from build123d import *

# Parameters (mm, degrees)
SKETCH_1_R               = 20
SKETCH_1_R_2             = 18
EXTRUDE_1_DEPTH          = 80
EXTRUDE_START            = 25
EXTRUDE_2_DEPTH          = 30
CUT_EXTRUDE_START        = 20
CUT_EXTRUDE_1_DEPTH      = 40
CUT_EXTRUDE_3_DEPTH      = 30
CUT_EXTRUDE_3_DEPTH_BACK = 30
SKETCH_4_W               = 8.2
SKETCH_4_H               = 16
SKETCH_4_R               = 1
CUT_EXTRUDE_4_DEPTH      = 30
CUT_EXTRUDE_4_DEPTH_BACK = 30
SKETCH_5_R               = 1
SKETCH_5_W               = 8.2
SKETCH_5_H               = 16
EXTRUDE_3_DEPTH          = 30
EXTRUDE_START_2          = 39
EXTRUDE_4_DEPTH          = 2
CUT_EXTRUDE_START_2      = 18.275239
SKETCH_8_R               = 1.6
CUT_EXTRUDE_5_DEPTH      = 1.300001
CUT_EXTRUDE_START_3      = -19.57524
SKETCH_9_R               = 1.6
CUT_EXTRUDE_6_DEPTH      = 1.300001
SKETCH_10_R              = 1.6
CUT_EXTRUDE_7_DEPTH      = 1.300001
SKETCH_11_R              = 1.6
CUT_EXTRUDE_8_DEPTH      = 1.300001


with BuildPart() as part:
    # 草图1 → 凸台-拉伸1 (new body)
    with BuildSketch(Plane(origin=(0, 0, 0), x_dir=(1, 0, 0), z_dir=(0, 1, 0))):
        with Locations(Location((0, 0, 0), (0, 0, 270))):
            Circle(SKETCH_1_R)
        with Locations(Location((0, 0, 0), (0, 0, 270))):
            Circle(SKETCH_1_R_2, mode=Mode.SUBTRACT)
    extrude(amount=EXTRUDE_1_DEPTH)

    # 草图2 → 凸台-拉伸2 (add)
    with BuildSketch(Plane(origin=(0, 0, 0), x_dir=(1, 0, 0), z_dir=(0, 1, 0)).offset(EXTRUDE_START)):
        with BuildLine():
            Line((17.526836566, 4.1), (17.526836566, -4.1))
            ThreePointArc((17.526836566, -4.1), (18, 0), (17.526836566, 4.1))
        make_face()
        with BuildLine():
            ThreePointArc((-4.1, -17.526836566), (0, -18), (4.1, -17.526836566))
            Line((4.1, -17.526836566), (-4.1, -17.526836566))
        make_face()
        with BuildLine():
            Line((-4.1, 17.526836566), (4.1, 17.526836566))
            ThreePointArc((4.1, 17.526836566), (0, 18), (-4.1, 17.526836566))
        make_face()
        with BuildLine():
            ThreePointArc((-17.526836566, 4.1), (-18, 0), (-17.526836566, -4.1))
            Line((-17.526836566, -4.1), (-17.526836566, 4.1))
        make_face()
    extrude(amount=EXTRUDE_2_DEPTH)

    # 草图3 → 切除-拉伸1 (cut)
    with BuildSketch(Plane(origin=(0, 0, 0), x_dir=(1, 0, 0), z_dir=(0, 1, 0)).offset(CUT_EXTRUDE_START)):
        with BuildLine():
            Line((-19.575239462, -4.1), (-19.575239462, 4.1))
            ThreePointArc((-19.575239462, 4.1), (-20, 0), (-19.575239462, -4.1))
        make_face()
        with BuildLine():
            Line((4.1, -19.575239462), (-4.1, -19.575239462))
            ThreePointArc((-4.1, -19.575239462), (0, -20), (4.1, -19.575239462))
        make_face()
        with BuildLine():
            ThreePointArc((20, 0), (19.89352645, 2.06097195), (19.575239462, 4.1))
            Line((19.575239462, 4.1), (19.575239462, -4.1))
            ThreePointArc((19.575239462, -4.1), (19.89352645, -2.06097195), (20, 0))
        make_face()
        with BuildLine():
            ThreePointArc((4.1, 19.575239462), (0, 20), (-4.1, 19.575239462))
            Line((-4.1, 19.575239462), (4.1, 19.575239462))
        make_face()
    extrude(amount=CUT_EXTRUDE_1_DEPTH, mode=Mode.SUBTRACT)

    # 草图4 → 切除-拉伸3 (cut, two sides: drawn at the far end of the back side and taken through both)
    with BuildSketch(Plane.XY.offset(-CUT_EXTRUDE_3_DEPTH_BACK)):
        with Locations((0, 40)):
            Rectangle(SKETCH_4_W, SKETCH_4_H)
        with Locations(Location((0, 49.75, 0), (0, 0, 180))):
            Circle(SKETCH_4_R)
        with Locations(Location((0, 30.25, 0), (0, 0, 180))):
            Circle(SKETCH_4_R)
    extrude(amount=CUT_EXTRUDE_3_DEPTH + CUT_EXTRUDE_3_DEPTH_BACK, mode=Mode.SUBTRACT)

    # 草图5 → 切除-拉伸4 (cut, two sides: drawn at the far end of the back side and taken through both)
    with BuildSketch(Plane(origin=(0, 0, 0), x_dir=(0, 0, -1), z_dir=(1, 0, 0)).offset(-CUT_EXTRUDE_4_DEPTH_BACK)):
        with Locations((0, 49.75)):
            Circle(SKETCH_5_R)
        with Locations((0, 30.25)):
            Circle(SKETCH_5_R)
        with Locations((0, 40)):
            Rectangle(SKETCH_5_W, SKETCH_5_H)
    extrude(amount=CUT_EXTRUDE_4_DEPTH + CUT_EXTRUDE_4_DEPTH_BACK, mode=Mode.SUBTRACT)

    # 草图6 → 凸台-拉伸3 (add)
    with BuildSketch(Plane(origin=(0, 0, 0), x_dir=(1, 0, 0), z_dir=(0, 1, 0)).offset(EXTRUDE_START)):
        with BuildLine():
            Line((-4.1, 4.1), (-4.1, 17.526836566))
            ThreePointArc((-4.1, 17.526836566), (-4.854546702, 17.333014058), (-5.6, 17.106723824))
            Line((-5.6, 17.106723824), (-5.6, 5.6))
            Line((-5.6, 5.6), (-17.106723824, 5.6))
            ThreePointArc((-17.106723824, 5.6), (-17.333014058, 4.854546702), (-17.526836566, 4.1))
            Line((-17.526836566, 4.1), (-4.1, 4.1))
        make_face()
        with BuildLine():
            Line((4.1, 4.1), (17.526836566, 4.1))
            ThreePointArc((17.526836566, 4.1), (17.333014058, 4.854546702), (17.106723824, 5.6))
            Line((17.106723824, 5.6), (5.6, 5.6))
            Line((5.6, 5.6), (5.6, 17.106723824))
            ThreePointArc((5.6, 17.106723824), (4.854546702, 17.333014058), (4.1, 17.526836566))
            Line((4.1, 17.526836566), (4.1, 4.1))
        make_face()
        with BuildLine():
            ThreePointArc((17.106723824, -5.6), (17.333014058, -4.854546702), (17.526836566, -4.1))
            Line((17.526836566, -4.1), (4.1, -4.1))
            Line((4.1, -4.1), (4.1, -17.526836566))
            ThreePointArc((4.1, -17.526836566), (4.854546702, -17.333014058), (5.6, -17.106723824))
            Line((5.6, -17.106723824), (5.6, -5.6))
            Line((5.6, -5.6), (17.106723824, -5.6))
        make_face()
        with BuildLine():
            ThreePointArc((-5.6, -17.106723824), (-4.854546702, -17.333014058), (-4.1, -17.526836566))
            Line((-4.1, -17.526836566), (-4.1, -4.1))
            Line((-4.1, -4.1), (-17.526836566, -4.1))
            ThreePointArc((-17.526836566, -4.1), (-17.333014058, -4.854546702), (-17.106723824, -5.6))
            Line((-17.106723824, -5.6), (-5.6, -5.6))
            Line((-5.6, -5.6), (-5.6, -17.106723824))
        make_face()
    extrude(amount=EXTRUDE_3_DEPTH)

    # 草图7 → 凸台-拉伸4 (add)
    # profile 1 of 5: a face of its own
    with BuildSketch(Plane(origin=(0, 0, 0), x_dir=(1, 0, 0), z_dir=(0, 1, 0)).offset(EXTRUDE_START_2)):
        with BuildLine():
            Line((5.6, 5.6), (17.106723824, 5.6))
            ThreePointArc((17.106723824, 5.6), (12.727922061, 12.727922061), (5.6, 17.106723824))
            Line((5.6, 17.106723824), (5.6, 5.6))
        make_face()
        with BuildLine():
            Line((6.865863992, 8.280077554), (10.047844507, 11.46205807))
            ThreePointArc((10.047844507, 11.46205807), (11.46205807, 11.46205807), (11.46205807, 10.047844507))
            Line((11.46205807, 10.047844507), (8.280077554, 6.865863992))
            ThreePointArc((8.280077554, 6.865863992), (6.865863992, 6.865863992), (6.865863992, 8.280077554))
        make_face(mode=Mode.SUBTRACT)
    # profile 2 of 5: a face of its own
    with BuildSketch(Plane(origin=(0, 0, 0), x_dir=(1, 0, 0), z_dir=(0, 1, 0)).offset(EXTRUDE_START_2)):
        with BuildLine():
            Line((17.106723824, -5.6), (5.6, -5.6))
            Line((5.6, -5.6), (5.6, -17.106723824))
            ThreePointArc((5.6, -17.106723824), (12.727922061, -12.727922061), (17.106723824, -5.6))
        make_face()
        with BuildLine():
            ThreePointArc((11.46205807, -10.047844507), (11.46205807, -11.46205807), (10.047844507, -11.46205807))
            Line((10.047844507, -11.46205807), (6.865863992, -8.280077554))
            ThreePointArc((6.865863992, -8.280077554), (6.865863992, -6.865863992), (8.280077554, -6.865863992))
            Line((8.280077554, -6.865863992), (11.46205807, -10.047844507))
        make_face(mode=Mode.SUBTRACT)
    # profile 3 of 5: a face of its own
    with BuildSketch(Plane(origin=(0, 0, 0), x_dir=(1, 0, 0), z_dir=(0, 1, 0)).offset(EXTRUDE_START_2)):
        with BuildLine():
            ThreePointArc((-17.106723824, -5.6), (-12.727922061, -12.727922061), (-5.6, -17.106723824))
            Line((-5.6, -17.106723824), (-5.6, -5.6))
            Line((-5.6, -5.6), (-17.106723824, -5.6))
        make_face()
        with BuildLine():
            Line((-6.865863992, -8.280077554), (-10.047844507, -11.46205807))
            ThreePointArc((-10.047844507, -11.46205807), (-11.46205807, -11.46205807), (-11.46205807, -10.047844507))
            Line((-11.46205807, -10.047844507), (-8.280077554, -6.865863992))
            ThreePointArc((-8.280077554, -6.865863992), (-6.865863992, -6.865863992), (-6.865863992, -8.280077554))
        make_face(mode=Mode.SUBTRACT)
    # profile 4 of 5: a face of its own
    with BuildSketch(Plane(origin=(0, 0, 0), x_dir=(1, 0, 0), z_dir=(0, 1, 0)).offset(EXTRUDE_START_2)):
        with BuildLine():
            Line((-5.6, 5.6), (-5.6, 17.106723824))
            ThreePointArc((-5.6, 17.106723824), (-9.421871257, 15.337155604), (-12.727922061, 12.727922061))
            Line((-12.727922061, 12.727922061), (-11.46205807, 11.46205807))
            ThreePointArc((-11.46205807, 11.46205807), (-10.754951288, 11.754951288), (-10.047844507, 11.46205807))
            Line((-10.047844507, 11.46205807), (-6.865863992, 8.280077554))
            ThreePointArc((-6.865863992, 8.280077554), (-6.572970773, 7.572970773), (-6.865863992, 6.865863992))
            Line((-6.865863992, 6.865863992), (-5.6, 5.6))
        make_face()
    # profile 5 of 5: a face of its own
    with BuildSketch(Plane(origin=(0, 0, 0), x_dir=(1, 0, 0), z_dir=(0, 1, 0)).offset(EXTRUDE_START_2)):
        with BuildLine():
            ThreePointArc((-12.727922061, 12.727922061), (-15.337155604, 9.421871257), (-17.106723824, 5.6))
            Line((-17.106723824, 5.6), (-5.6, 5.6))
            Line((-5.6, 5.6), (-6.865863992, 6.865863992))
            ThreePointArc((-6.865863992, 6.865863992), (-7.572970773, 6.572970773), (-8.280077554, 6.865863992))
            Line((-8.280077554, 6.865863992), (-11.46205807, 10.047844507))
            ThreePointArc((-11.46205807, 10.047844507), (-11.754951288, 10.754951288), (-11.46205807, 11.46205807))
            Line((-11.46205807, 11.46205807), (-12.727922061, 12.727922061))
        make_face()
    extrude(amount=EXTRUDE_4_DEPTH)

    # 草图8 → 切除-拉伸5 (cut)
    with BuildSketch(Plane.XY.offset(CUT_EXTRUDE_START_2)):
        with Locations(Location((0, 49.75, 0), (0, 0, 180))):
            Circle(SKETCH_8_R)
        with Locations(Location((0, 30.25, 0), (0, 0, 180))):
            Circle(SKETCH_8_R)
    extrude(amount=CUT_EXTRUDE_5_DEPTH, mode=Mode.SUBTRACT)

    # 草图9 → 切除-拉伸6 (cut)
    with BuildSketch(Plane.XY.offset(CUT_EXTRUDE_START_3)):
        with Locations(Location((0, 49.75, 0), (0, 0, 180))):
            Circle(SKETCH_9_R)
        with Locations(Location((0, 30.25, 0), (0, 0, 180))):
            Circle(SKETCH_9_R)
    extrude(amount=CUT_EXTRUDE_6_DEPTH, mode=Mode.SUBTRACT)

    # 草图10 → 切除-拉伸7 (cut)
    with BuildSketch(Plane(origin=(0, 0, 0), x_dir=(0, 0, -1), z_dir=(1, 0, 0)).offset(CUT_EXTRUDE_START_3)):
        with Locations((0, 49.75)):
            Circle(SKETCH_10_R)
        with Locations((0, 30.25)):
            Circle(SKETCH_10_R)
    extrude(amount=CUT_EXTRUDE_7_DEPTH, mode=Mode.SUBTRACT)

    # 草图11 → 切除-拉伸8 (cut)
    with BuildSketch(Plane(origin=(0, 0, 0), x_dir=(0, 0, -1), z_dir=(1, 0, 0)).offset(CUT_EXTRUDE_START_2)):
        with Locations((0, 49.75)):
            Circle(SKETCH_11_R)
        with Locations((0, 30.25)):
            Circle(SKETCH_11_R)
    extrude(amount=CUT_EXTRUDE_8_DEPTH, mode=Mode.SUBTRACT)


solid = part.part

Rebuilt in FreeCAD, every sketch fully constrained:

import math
import FreeCAD as App
import Part
import Sketcher

V = App.Vector

doc = App.newDocument("Part")
body = doc.addObject("PartDesign::Body", "Body")

# Sketch on XZ plane
sketch1 = body.newObject("Sketcher::SketchObject", "Sketch")
sketch1.AttachmentSupport = (doc.getObject("XZ_Plane"), [""])
sketch1.MapMode = "FlatFace"
sketch1.addGeometry([
    Part.Circle(V(0, 0, 0), V(0, 0, 1), 20),
    Part.Circle(V(0, 0, 0), V(0, 0, 1), 18),
], False)
sketch1.addConstraint([
    Sketcher.Constraint("Coincident", 0, 3, -1, 1),
    Sketcher.Constraint("Coincident", 1, 3, -1, 1),
    Sketcher.Constraint("Diameter", 0, 40.0),
    Sketcher.Constraint("Diameter", 1, 36.0),
])
pad1 = body.newObject("PartDesign::Pad", "Pad")
pad1.Profile = sketch1
pad1.Length = 80
pad1.Reversed = True

# Sketch on XZ plane
sketch2 = body.newObject("Sketcher::SketchObject", "Sketch001")
sketch2.AttachmentSupport = (doc.getObject("XZ_Plane"), [""])
sketch2.MapMode = "FlatFace"
sketch2.AttachmentOffset = App.Placement(V(0, 0, -25), App.Rotation())
sketch2.addGeometry([
    Part.LineSegment(V(18, -4, 0), V(18, 4, 0)),  # 0
    Part.ArcOfCircle(Part.Circle(V(0, 0, 0), V(0, 0, 1), 18), math.radians(-13), math.radians(13)),  # 1
    Part.ArcOfCircle(Part.Circle(V(0, 0, 0), V(0, 0, 1), 18), math.radians(77), math.radians(103)),  # 2
    Part.LineSegment(V(4, 18, 0), V(-4, 18, 0)),  # 3
    Part.LineSegment(V(-4, -18, 0), V(4, -18, 0)),  # 4
    Part.ArcOfCircle(Part.Circle(V(0, 0, 0), V(0, 0, 1), 18), math.radians(-103), math.radians(-77)),  # 5
    Part.ArcOfCircle(Part.Circle(V(0, 0, 0), V(0, 0, 1), 18), math.radians(167), math.radians(193)),  # 6
    Part.LineSegment(V(-18, 4, 0), V(-18, -4, 0)),  # 7
], False)
sketch2.addConstraint([
    Sketcher.Constraint("Coincident", 0, 1, 1, 1),
    Sketcher.Constraint("Coincident", 1, 2, 0, 2),
    Sketcher.Constraint("Coincident", 2, 1, 3, 1),
    Sketcher.Constraint("Coincident", 3, 2, 2, 2),
    Sketcher.Constraint("Coincident", 4, 1, 5, 1),
    Sketcher.Constraint("Coincident", 5, 2, 4, 2),
    Sketcher.Constraint("Coincident", 6, 1, 7, 1),
    Sketcher.Constraint("Coincident", 7, 2, 6, 2),
    Sketcher.Constraint("Vertical", 0),
    Sketcher.Constraint("Horizontal", 3),
    Sketcher.Constraint("Horizontal", 4),
    Sketcher.Constraint("Vertical", 7),
    Sketcher.Constraint("Coincident", 1, 3, -1, 1),
    Sketcher.Constraint("Coincident", 2, 3, -1, 1),
    Sketcher.Constraint("Coincident", 5, 3, -1, 1),
    Sketcher.Constraint("Coincident", 6, 3, -1, 1),
    Sketcher.Constraint("Equal", 1, 2),
    Sketcher.Constraint("Equal", 2, 5),
    Sketcher.Constraint("Equal", 5, 6),
    Sketcher.Constraint("Horizontal", 1, 2, 6, 1),
    Sketcher.Constraint("Vertical", 3, 2, 4, 1),
    Sketcher.Constraint("Equal", 4, 0),
    Sketcher.Constraint("Radius", 1, 18.0),
    Sketcher.Constraint("DistanceX", 3, 2, 3, 1, 8.2),
])
pad2 = body.newObject("PartDesign::Pad", "Pad001")
pad2.Profile = sketch2
pad2.Length = 30
pad2.Reversed = True

# Sketch on XZ plane
sketch3 = body.newObject("Sketcher::SketchObject", "Sketch002")
sketch3.AttachmentSupport = (doc.getObject("XZ_Plane"), [""])
sketch3.MapMode = "FlatFace"
sketch3.AttachmentOffset = App.Placement(V(0, 0, -20), App.Rotation())
sketch3.addGeometry([
    Part.LineSegment(V(-19.6, 4.1, 0), V(-19.6, -4.1, 0)),  # 0
    Part.ArcOfCircle(Part.Circle(V(0, 0, 0), V(0, 0, 1), 20), math.radians(168), math.radians(192)),  # 1
    Part.LineSegment(V(4.1, 19.6, 0), V(-4.1, 19.6, 0)),  # 2
    Part.ArcOfCircle(Part.Circle(V(0, 0, 0), V(0, 0, 1), 20), math.radians(78), math.radians(102)),  # 3
    Part.ArcOfCircle(Part.Circle(V(0, 0, 0), V(0, 0, 1), 20), math.radians(-11.83), math.radians(0)),  # 4
    Part.LineSegment(V(19.6, -4.1, 0), V(19.6, 4.1, 0)),  # 5
    Part.ArcOfCircle(Part.Circle(V(0, 0, 0), V(0, 0, 1), 20), math.radians(0), math.radians(11.83)),  # 6
    Part.ArcOfCircle(Part.Circle(V(0, 0, 0), V(0, 0, 1), 20), math.radians(-102), math.radians(-78)),  # 7
    Part.LineSegment(V(-4.1, -19.6, 0), V(4.1, -19.6, 0)),  # 8
], False)
sketch3.addConstraint([
    Sketcher.Constraint("Coincident", 0, 1, 1, 1),
    Sketcher.Constraint("Coincident", 1, 2, 0, 2),
    Sketcher.Constraint("Coincident", 2, 1, 3, 1),
    Sketcher.Constraint("Coincident", 3, 2, 2, 2),
    Sketcher.Constraint("Coincident", 4, 1, 5, 1),
    Sketcher.Constraint("Coincident", 5, 2, 6, 2),
    Sketcher.Constraint("Tangent", 6, 1, 4, 2),
    Sketcher.Constraint("Coincident", 7, 1, 8, 1),
    Sketcher.Constraint("Coincident", 8, 2, 7, 2),
    Sketcher.Constraint("Vertical", 0),
    Sketcher.Constraint("Horizontal", 2),
    Sketcher.Constraint("Vertical", 5),
    Sketcher.Constraint("Horizontal", 8),
    Sketcher.Constraint("Coincident", 1, 3, -1, 1),
    Sketcher.Constraint("Coincident", 3, 3, -1, 1),
    Sketcher.Constraint("Coincident", 4, 3, -1, 1),
    Sketcher.Constraint("Coincident", 7, 3, -1, 1),
    Sketcher.Constraint("Equal", 1, 3),
    Sketcher.Constraint("Equal", 3, 4),
    Sketcher.Constraint("Equal", 4, 6),
    Sketcher.Constraint("Equal", 6, 7),
    Sketcher.Constraint("PointOnObject", 6, 1, -1),
    Sketcher.Constraint("Horizontal", 1, 2, 4, 1),
    Sketcher.Constraint("Vertical", 3, 2, 7, 1),
    Sketcher.Constraint("Equal", 8, 0),
    Sketcher.Constraint("Radius", 1, 20.0),
    Sketcher.Constraint("DistanceX", 2, 2, 2, 1, 8.2),
])
pocket1 = body.newObject("PartDesign::Pocket", "Pocket")
pocket1.Profile = sketch3
pocket1.Length = 40

# Sketch on XY plane
sketch4 = body.newObject("Sketcher::SketchObject", "Sketch003")
sketch4.AttachmentSupport = (doc.getObject("XY_Plane"), [""])
sketch4.MapMode = "FlatFace"
sketch4.addGeometry([
    Part.LineSegment(V(-4.1, 48, 0), V(-4.1, 32, 0)),  # 0
    Part.LineSegment(V(-4.1, 32, 0), V(4.1, 32, 0)),  # 1
    Part.LineSegment(V(4.1, 32, 0), V(4.1, 48, 0)),  # 2
    Part.LineSegment(V(4.1, 48, 0), V(-4.1, 48, 0)),  # 3
    Part.Circle(V(0, 49.8, 0), V(0, 0, 1), 1),  # 4
    Part.Circle(V(0, 30.2, 0), V(0, 0, 1), 1),  # 5
], False)
sketch4.addConstraint([
    Sketcher.Constraint("Coincident", 0, 2, 1, 1),
    Sketcher.Constraint("Coincident", 1, 2, 2, 1),
    Sketcher.Constraint("Coincident", 2, 2, 3, 1),
    Sketcher.Constraint("Coincident", 3, 2, 0, 1),
    Sketcher.Constraint("Vertical", 0),
    Sketcher.Constraint("Horizontal", 1),
    Sketcher.Constraint("Vertical", 2),
    Sketcher.Constraint("Horizontal", 3),
    Sketcher.Constraint("Equal", 4, 5),
    Sketcher.Constraint("PointOnObject", 4, 3, -2),
    Sketcher.Constraint("PointOnObject", 5, 3, -2),
    Sketcher.Constraint("Diameter", 4, 2.0),
    Sketcher.Constraint("DistanceY", 0, 2, 0, 1, 16.0),
    Sketcher.Constraint("DistanceX", 1, 1, 1, 2, 8.2),
    Sketcher.Constraint("DistanceY", -1, 1, 0, 2, 32.0),
    Sketcher.Constraint("DistanceX", 0, 2, -1, 1, 4.1),
    Sketcher.Constraint("DistanceY", 5, 3, 4, 3, 19.5),
    Sketcher.Constraint("DistanceY", -1, 1, 4, 3, 49.75),
])
pocket2 = body.newObject("PartDesign::Pocket", "Pocket001")
pocket2.Profile = sketch4
pocket2.Type = "ThroughAll"
pocket2.Midplane = True

# Sketch on YZ plane
sketch5 = body.newObject("Sketcher::SketchObject", "Sketch004")
sketch5.AttachmentSupport = (doc.getObject("YZ_Plane"), [""])
sketch5.MapMode = "FlatFace"
sketch5.addGeometry([
    Part.Circle(V(49.8, 0, 0), V(0, 0, 1), 1),  # 0
    Part.Circle(V(30.2, 0, 0), V(0, 0, 1), 1),  # 1
    Part.LineSegment(V(48, 4.1, 0), V(32, 4.1, 0)),  # 2
    Part.LineSegment(V(32, 4.1, 0), V(32, -4.1, 0)),  # 3
    Part.LineSegment(V(32, -4.1, 0), V(48, -4.1, 0)),  # 4
    Part.LineSegment(V(48, -4.1, 0), V(48, 4.1, 0)),  # 5
], False)
sketch5.addConstraint([
    Sketcher.Constraint("Coincident", 2, 2, 3, 1),
    Sketcher.Constraint("Coincident", 3, 2, 4, 1),
    Sketcher.Constraint("Coincident", 4, 2, 5, 1),
    Sketcher.Constraint("Coincident", 5, 2, 2, 1),
    Sketcher.Constraint("Horizontal", 2),
    Sketcher.Constraint("Vertical", 3),
    Sketcher.Constraint("Horizontal", 4),
    Sketcher.Constraint("Vertical", 5),
    Sketcher.Constraint("Equal", 0, 1),
    Sketcher.Constraint("PointOnObject", 0, 3, -1),
    Sketcher.Constraint("PointOnObject", 1, 3, -1),
    Sketcher.Constraint("Diameter", 0, 2.0),
    Sketcher.Constraint("DistanceX", 2, 2, 2, 1, 16.0),
    Sketcher.Constraint("DistanceY", 3, 2, 3, 1, 8.2),
    Sketcher.Constraint("DistanceX", -1, 1, 2, 2, 32.0),
    Sketcher.Constraint("DistanceY", -1, 1, 2, 2, 4.1),
    Sketcher.Constraint("DistanceX", 1, 3, 0, 3, 19.5),
    Sketcher.Constraint("DistanceX", -1, 1, 0, 3, 49.75),
])
pocket3 = body.newObject("PartDesign::Pocket", "Pocket002")
pocket3.Profile = sketch5
pocket3.Type = "ThroughAll"
pocket3.Midplane = True

# Sketch on XZ plane
sketch6 = body.newObject("Sketcher::SketchObject", "Sketch005")
sketch6.AttachmentSupport = (doc.getObject("XZ_Plane"), [""])
sketch6.MapMode = "FlatFace"
sketch6.AttachmentOffset = App.Placement(V(0, 0, -25), App.Rotation())
sketch6.addGeometry([
    Part.LineSegment(V(-4.1, -4.1, 0), V(-4.1, -17.5, 0)),  # 0
    Part.ArcOfCircle(Part.Circle(V(0, 0, 0), V(0, 0, 1), 18), math.radians(-108.13), math.radians(-103.17)),  # 1
    Part.LineSegment(V(-5.6, -17.1, 0), V(-5.6, -5.6, 0)),  # 2
    Part.LineSegment(V(-5.6, -5.6, 0), V(-17.1, -5.6, 0)),  # 3
    Part.ArcOfCircle(Part.Circle(V(0, 0, 0), V(0, 0, 1), 18), math.radians(-166.83), math.radians(-161.87)),  # 4
    Part.LineSegment(V(-17.5, -4.1, 0), V(-4.1, -4.1, 0)),  # 5
    Part.LineSegment(V(4.1, -4.1, 0), V(17.5, -4.1, 0)),  # 6
    Part.ArcOfCircle(Part.Circle(V(0, 0, 0), V(0, 0, 1), 18), math.radians(-18.13), math.radians(-13.17)),  # 7
    Part.LineSegment(V(17.1, -5.6, 0), V(5.6, -5.6, 0)),  # 8
    Part.LineSegment(V(5.6, -5.6, 0), V(5.6, -17.1, 0)),  # 9
    Part.ArcOfCircle(Part.Circle(V(0, 0, 0), V(0, 0, 1), 18), math.radians(-76.83), math.radians(-71.87)),  # 10
    Part.LineSegment(V(4.1, -17.5, 0), V(4.1, -4.1, 0)),  # 11
    Part.ArcOfCircle(Part.Circle(V(0, 0, 0), V(0, 0, 1), 18), math.radians(13.17), math.radians(18.13)),  # 12
    Part.LineSegment(V(17.5, 4.1, 0), V(4.1, 4.1, 0)),  # 13
    Part.LineSegment(V(4.1, 4.1, 0), V(4.1, 17.5, 0)),  # 14
    Part.ArcOfCircle(Part.Circle(V(0, 0, 0), V(0, 0, 1), 18), math.radians(71.87), math.radians(76.83)),  # 15
    Part.LineSegment(V(5.6, 17.1, 0), V(5.6, 5.6, 0)),  # 16
    Part.LineSegment(V(5.6, 5.6, 0), V(17.1, 5.6, 0)),  # 17
    Part.ArcOfCircle(Part.Circle(V(0, 0, 0), V(0, 0, 1), 18), math.radians(103.17), math.radians(108.13)),  # 18
    Part.LineSegment(V(-4.1, 17.5, 0), V(-4.1, 4.1, 0)),  # 19
    Part.LineSegment(V(-4.1, 4.1, 0), V(-17.5, 4.1, 0)),  # 20
    Part.ArcOfCircle(Part.Circle(V(0, 0, 0), V(0, 0, 1), 18), math.radians(161.87), math.radians(166.83)),  # 21
    Part.LineSegment(V(-17.1, 5.6, 0), V(-5.6, 5.6, 0)),  # 22
    Part.LineSegment(V(-5.6, 5.6, 0), V(-5.6, 17.1, 0)),  # 23
], False)
sketch6.addConstraint([
    Sketcher.Constraint("Coincident", 0, 2, 1, 2),
    Sketcher.Constraint("Coincident", 1, 1, 2, 1),
    Sketcher.Constraint("Coincident", 2, 2, 3, 1),
    Sketcher.Constraint("Coincident", 3, 2, 4, 2),
    Sketcher.Constraint("Coincident", 4, 1, 5, 1),
    Sketcher.Constraint("Coincident", 5, 2, 0, 1),
    Sketcher.Constraint("Coincident", 6, 2, 7, 2),
    Sketcher.Constraint("Coincident", 7, 1, 8, 1),
    Sketcher.Constraint("Coincident", 8, 2, 9, 1),
    Sketcher.Constraint("Coincident", 9, 2, 10, 2),
    Sketcher.Constraint("Coincident", 10, 1, 11, 1),
    Sketcher.Constraint("Coincident", 11, 2, 6, 1),
    Sketcher.Constraint("Coincident", 12, 1, 13, 1),
    Sketcher.Constraint("Coincident", 13, 2, 14, 1),
    Sketcher.Constraint("Coincident", 14, 2, 15, 2),
    Sketcher.Constraint("Coincident", 15, 1, 16, 1),
    Sketcher.Constraint("Coincident", 16, 2, 17, 1),
    Sketcher.Constraint("Coincident", 17, 2, 12, 2),
    Sketcher.Constraint("Coincident", 18, 1, 19, 1),
    Sketcher.Constraint("Coincident", 19, 2, 20, 1),
    Sketcher.Constraint("Coincident", 20, 2, 21, 2),
    Sketcher.Constraint("Coincident", 21, 1, 22, 1),
    Sketcher.Constraint("Coincident", 22, 2, 23, 1),
    Sketcher.Constraint("Coincident", 23, 2, 18, 2),
    Sketcher.Constraint("Vertical", 0),
    Sketcher.Constraint("Vertical", 2),
    Sketcher.Constraint("Horizontal", 3),
    Sketcher.Constraint("Horizontal", 5),
    Sketcher.Constraint("Horizontal", 6),
    Sketcher.Constraint("Horizontal", 8),
    Sketcher.Constraint("Vertical", 9),
    Sketcher.Constraint("Vertical", 11),
    Sketcher.Constraint("Horizontal", 13),
    Sketcher.Constraint("Vertical", 14),
    Sketcher.Constraint("Vertical", 16),
    Sketcher.Constraint("Horizontal", 17),
    Sketcher.Constraint("Vertical", 19),
    Sketcher.Constraint("Horizontal", 20),
    Sketcher.Constraint("Horizontal", 22),
    Sketcher.Constraint("Vertical", 23),
    Sketcher.Constraint("Coincident", 1, 3, -1, 1),
    Sketcher.Constraint("Coincident", 4, 3, -1, 1),
    Sketcher.Constraint("Coincident", 7, 3, -1, 1),
    Sketcher.Constraint("Coincident", 10, 3, -1, 1),
    Sketcher.Constraint("Coincident", 12, 3, -1, 1),
    Sketcher.Constraint("Coincident", 15, 3, -1, 1),
    Sketcher.Constraint("Coincident", 18, 3, -1, 1),
    Sketcher.Constraint("Coincident", 21, 3, -1, 1),
    Sketcher.Constraint("Equal", 1, 4),
    Sketcher.Constraint("Equal", 4, 7),
    Sketcher.Constraint("Equal", 7, 10),
    Sketcher.Constraint("Equal", 10, 12),
    Sketcher.Constraint("Equal", 12, 15),
    Sketcher.Constraint("Equal", 15, 18),
    Sketcher.Constraint("Equal", 18, 21),
    Sketcher.Constraint("Symmetric", 5, 2, 13, 2, -1, 1),
    Sketcher.Constraint("Symmetric", 2, 2, 16, 2, -1, 1),
    Sketcher.Constraint("Symmetric", 11, 2, 19, 2, -1, 1),
    Sketcher.Constraint("Symmetric", 8, 2, 22, 2, -1, 1),
    Sketcher.Constraint("Symmetric", 2, 2, 8, 2, -2),
    Sketcher.Constraint("Symmetric", 5, 2, 11, 2, -2),
    Sketcher.Constraint("Equal", 20, 0),
    Sketcher.Constraint("Equal", 22, 2),
    Sketcher.Constraint("Radius", 1, 18.0),
    Sketcher.Constraint("DistanceX", 0, 2, -1, 1, 4.1),
    Sketcher.Constraint("DistanceX", 1, 1, -1, 1, 5.6),
])
pad3 = body.newObject("PartDesign::Pad", "Pad002")
pad3.Profile = sketch6
pad3.Length = 30
pad3.Reversed = True

# Sketch on XZ plane
sketch7 = body.newObject("Sketcher::SketchObject", "Sketch006")
sketch7.AttachmentSupport = (doc.getObject("XZ_Plane"), [""])
sketch7.MapMode = "FlatFace"
sketch7.AttachmentOffset = App.Placement(V(0, 0, -39), App.Rotation())
sketch7.addGeometry([
    Part.LineSegment(V(5.6, -5.6, 0), V(17.1, -5.6, 0)),  # 0
    Part.ArcOfCircle(Part.Circle(V(0, 0, 0), V(0, 0, 1), 18), math.radians(-72), math.radians(-18)),  # 1
    Part.LineSegment(V(5.6, -17.1, 0), V(5.6, -5.6, 0)),  # 2
    Part.ArcOfCircle(Part.Circle(V(7.6, -7.6, 0), V(0, 0, 1), 1), math.radians(45), math.radians(225)),  # 3
    Part.LineSegment(V(6.9, -8.3, 0), V(10, -11.5, 0)),  # 4
    Part.ArcOfCircle(Part.Circle(V(10.8, -10.8, 0), V(0, 0, 1), 1), math.radians(-135), math.radians(45)),  # 5
    Part.LineSegment(V(11.5, -10, 0), V(8.3, -6.9, 0)),  # 6
    Part.LineSegment(V(17.1, 5.6, 0), V(5.6, 5.6, 0)),  # 7
    Part.LineSegment(V(5.6, 5.6, 0), V(5.6, 17.1, 0)),  # 8
    Part.ArcOfCircle(Part.Circle(V(0, 0, 0), V(0, 0, 1), 18), math.radians(18), math.radians(72)),  # 9
    Part.LineSegment(V(8.3, 6.9, 0), V(11.5, 10, 0)),  # 10
    Part.ArcOfCircle(Part.Circle(V(10.8, 10.8, 0), V(0, 0, 1), 1), math.radians(-45), math.radians(135)),  # 11
    Part.LineSegment(V(10, 11.5, 0), V(6.9, 8.3, 0)),  # 12
    Part.ArcOfCircle(Part.Circle(V(7.6, 7.6, 0), V(0, 0, 1), 1), math.radians(135), math.radians(315)),  # 13
    Part.ArcOfCircle(Part.Circle(V(0, 0, 0), V(0, 0, 1), 18), math.radians(108), math.radians(162)),  # 14
    Part.LineSegment(V(-5.6, 17.1, 0), V(-5.6, 5.6, 0)),  # 15
    Part.LineSegment(V(-5.6, 5.6, 0), V(-17.1, 5.6, 0)),  # 16
    Part.ArcOfCircle(Part.Circle(V(-7.6, 7.6, 0), V(0, 0, 1), 1), math.radians(-135), math.radians(45)),  # 17
    Part.LineSegment(V(-6.9, 8.3, 0), V(-10, 11.5, 0)),  # 18
    Part.ArcOfCircle(Part.Circle(V(-10.8, 10.8, 0), V(0, 0, 1), 1), math.radians(45), math.radians(225)),  # 19
    Part.LineSegment(V(-11.5, 10, 0), V(-8.3, 6.9, 0)),  # 20
    Part.LineSegment(V(-5.6, -5.6, 0), V(-5.6, -17.1, 0)),  # 21
    Part.ArcOfCircle(Part.Circle(V(0, 0, 0), V(0, 0, 1), 18), math.radians(-135), math.radians(-108)),  # 22
    Part.ArcOfCircle(Part.Circle(V(0, 0, 0), V(0, 0, 1), 18), math.radians(-162), math.radians(-135)),  # 23
    Part.LineSegment(V(-17.1, -5.6, 0), V(-5.6, -5.6, 0)),  # 24
    Part.ArcOfCircle(Part.Circle(V(-10.8, -10.8, 0), V(0, 0, 1), 1), math.radians(-135), math.radians(-45)),  # 25
    Part.LineSegment(V(-10, -11.5, 0), V(-6.9, -8.3, 0)),  # 26
    Part.ArcOfCircle(Part.Circle(V(-7.6, -7.6, 0), V(0, 0, 1), 1), math.radians(-45), math.radians(45)),  # 27
    Part.ArcOfCircle(Part.Circle(V(-7.6, -7.6, 0), V(0, 0, 1), 1), math.radians(45), math.radians(135)),  # 28
    Part.LineSegment(V(-8.3, -6.9, 0), V(-11.5, -10, 0)),  # 29
    Part.ArcOfCircle(Part.Circle(V(-10.8, -10.8, 0), V(0, 0, 1), 1), math.radians(135), math.radians(225)),  # 30
], False)
sketch7.addConstraint([
    Sketcher.Constraint("Coincident", 0, 2, 1, 2),
    Sketcher.Constraint("Coincident", 1, 1, 2, 1),
    Sketcher.Constraint("Coincident", 2, 2, 0, 1),
    Sketcher.Constraint("Tangent", 3, 2, 4, 1),
    Sketcher.Constraint("Tangent", 4, 2, 5, 1),
    Sketcher.Constraint("Tangent", 5, 2, 6, 1),
    Sketcher.Constraint("Tangent", 6, 2, 3, 1),
    Sketcher.Constraint("Coincident", 7, 2, 8, 1),
    Sketcher.Constraint("Coincident", 8, 2, 9, 2),
    Sketcher.Constraint("Coincident", 9, 1, 7, 1),
    Sketcher.Constraint("Tangent", 10, 2, 11, 1),
    Sketcher.Constraint("Tangent", 11, 2, 12, 1),
    Sketcher.Constraint("Tangent", 12, 2, 13, 1),
    Sketcher.Constraint("Tangent", 13, 2, 10, 1),
    Sketcher.Constraint("Coincident", 14, 1, 15, 1),
    Sketcher.Constraint("Coincident", 15, 2, 16, 1),
    Sketcher.Constraint("Coincident", 16, 2, 14, 2),
    Sketcher.Constraint("Tangent", 17, 2, 18, 1),
    Sketcher.Constraint("Tangent", 18, 2, 19, 1),
    Sketcher.Constraint("Tangent", 19, 2, 20, 1),
    Sketcher.Constraint("Tangent", 20, 2, 17, 1),
    Sketcher.Constraint("Coincident", 21, 2, 22, 2),
    Sketcher.Constraint("Tangent", 22, 1, 23, 2),
    Sketcher.Constraint("Coincident", 23, 1, 24, 1),
    Sketcher.Constraint("Coincident", 24, 2, 21, 1),
    Sketcher.Constraint("Tangent", 25, 2, 26, 1),
    Sketcher.Constraint("Tangent", 26, 2, 27, 1),
    Sketcher.Constraint("Tangent", 27, 2, 28, 1),
    Sketcher.Constraint("Tangent", 28, 2, 29, 1),
    Sketcher.Constraint("Tangent", 29, 2, 30, 1),
    Sketcher.Constraint("Tangent", 30, 2, 25, 1),
    Sketcher.Constraint("Horizontal", 0),
    Sketcher.Constraint("Vertical", 2),
    Sketcher.Constraint("Horizontal", 7),
    Sketcher.Constraint("Vertical", 8),
    Sketcher.Constraint("Vertical", 15),
    Sketcher.Constraint("Horizontal", 16),
    Sketcher.Constraint("Vertical", 21),
    Sketcher.Constraint("Horizontal", 24),
    Sketcher.Constraint("Coincident", 1, 3, -1, 1),
    Sketcher.Constraint("Coincident", 9, 3, -1, 1),
    Sketcher.Constraint("Coincident", 14, 3, -1, 1),
    Sketcher.Constraint("Coincident", 22, 3, -1, 1),
    Sketcher.Constraint("Equal", 3, 5),
    Sketcher.Constraint("Equal", 1, 9),
    Sketcher.Constraint("Equal", 5, 11),
    Sketcher.Constraint("Equal", 11, 13),
    Sketcher.Constraint("Equal", 9, 14),
    Sketcher.Constraint("Equal", 13, 17),
    Sketcher.Constraint("Equal", 17, 19),
    Sketcher.Constraint("Equal", 14, 22),
    Sketcher.Constraint("Equal", 22, 23),
    Sketcher.Constraint("Equal", 19, 25),
    Sketcher.Constraint("Equal", 25, 27),
    Sketcher.Constraint("Equal", 27, 28),
    Sketcher.Constraint("Equal", 28, 30),
    Sketcher.Constraint("Symmetric", 3, 3, 17, 3, -1, 1),
    Sketcher.Constraint("Symmetric", 5, 3, 19, 3, -1, 1),
    Sketcher.Constraint("Symmetric", 11, 3, 25, 3, -1, 1),
    Sketcher.Constraint("Symmetric", 13, 3, 27, 3, -1, 1),
    Sketcher.Constraint("Symmetric", 2, 2, 15, 2, -1, 1),
    Sketcher.Constraint("Symmetric", 7, 2, 24, 2, -1, 1),
    Sketcher.Constraint("Symmetric", 13, 3, 17, 3, -2),
    Sketcher.Constraint("Symmetric", 11, 3, 19, 3, -2),
    Sketcher.Constraint("Symmetric", 7, 2, 15, 2, -2),
    Sketcher.Constraint("Perpendicular", 6, 10),
    Sketcher.Constraint("Horizontal", 6, 2, 27, 2),
    Sketcher.Constraint("Horizontal", 25, 2, 30, 2),
    Sketcher.Constraint("Equal", 24, 2),
    Sketcher.Constraint("Radius", 1, 18.0),
    Sketcher.Constraint("Radius", 3, 1.0),
    Sketcher.Constraint("Distance", 4, 4.5),
    Sketcher.Constraint("DistanceY", 0, 2, -1, 1, 5.6),
    Sketcher.Constraint("DistanceY", 21, 2, 22, 1, 4.378802),
    Sketcher.Constraint("DistanceX", -1, 1, 3, 3, 7.572971),
    Sketcher.Constraint("DistanceY", 3, 3, -1, 1, 7.572971),
])
pad4 = body.newObject("PartDesign::Pad", "Pad003")
pad4.Profile = sketch7
pad4.Length = 2
pad4.Reversed = True

# Sketch on XY plane
sketch8 = body.newObject("Sketcher::SketchObject", "Sketch007")
sketch8.AttachmentSupport = (doc.getObject("XY_Plane"), [""])
sketch8.MapMode = "FlatFace"
sketch8.AttachmentOffset = App.Placement(V(0, 0, 18.275239), App.Rotation())
sketch8.addGeometry([
    Part.Circle(V(0, 49.8, 0), V(0, 0, 1), 1.6),
    Part.Circle(V(0, 30.2, 0), V(0, 0, 1), 1.6),
], False)
sketch8.addConstraint([
    Sketcher.Constraint("Equal", 0, 1),
    Sketcher.Constraint("PointOnObject", 0, 3, -2),
    Sketcher.Constraint("PointOnObject", 1, 3, -2),
    Sketcher.Constraint("Diameter", 0, 3.2),
    Sketcher.Constraint("DistanceY", 1, 3, 0, 3, 19.5),
    Sketcher.Constraint("DistanceY", -1, 1, 0, 3, 49.75),
])
pocket4 = body.newObject("PartDesign::Pocket", "Pocket003")
pocket4.Profile = sketch8
pocket4.Length = 1.300001
pocket4.Reversed = True

# Sketch on XY plane
sketch9 = body.newObject("Sketcher::SketchObject", "Sketch008")
sketch9.AttachmentSupport = (doc.getObject("XY_Plane"), [""])
sketch9.MapMode = "FlatFace"
sketch9.AttachmentOffset = App.Placement(V(0, 0, -19.57524), App.Rotation())
sketch9.addGeometry([
    Part.Circle(V(0, 49.8, 0), V(0, 0, 1), 1.6),
    Part.Circle(V(0, 30.2, 0), V(0, 0, 1), 1.6),
], False)
sketch9.addConstraint([
    Sketcher.Constraint("Equal", 0, 1),
    Sketcher.Constraint("PointOnObject", 0, 3, -2),
    Sketcher.Constraint("PointOnObject", 1, 3, -2),
    Sketcher.Constraint("Diameter", 0, 3.2),
    Sketcher.Constraint("DistanceY", 1, 3, 0, 3, 19.5),
    Sketcher.Constraint("DistanceY", -1, 1, 0, 3, 49.75),
])
pocket5 = body.newObject("PartDesign::Pocket", "Pocket004")
pocket5.Profile = sketch9
pocket5.Length = 1.300001
pocket5.Reversed = True

# Sketch on YZ plane
sketch10 = body.newObject("Sketcher::SketchObject", "Sketch009")
sketch10.AttachmentSupport = (doc.getObject("YZ_Plane"), [""])
sketch10.MapMode = "FlatFace"
sketch10.AttachmentOffset = App.Placement(V(0, 0, -19.57524), App.Rotation())
sketch10.addGeometry([
    Part.Circle(V(49.8, 0, 0), V(0, 0, 1), 1.6),
    Part.Circle(V(30.2, 0, 0), V(0, 0, 1), 1.6),
], False)
sketch10.addConstraint([
    Sketcher.Constraint("Equal", 0, 1),
    Sketcher.Constraint("PointOnObject", 0, 3, -1),
    Sketcher.Constraint("PointOnObject", 1, 3, -1),
    Sketcher.Constraint("Diameter", 0, 3.2),
    Sketcher.Constraint("DistanceX", 1, 3, 0, 3, 19.5),
    Sketcher.Constraint("DistanceX", -1, 1, 0, 3, 49.75),
])
pocket6 = body.newObject("PartDesign::Pocket", "Pocket005")
pocket6.Profile = sketch10
pocket6.Length = 1.300001
pocket6.Reversed = True

# Sketch on YZ plane
sketch11 = body.newObject("Sketcher::SketchObject", "Sketch010")
sketch11.AttachmentSupport = (doc.getObject("YZ_Plane"), [""])
sketch11.MapMode = "FlatFace"
sketch11.AttachmentOffset = App.Placement(V(0, 0, 18.275239), App.Rotation())
sketch11.addGeometry([
    Part.Circle(V(49.8, 0, 0), V(0, 0, 1), 1.6),
    Part.Circle(V(30.2, 0, 0), V(0, 0, 1), 1.6),
], False)
sketch11.addConstraint([
    Sketcher.Constraint("Equal", 0, 1),
    Sketcher.Constraint("PointOnObject", 0, 3, -1),
    Sketcher.Constraint("PointOnObject", 1, 3, -1),
    Sketcher.Constraint("Diameter", 0, 3.2),
    Sketcher.Constraint("DistanceX", 1, 3, 0, 3, 19.5),
    Sketcher.Constraint("DistanceX", -1, 1, 0, 3, 49.75),
])
pocket7 = body.newObject("PartDesign::Pocket", "Pocket006")
pocket7.Profile = sketch11
pocket7.Length = 1.300001
pocket7.Reversed = True

doc.recompute()
